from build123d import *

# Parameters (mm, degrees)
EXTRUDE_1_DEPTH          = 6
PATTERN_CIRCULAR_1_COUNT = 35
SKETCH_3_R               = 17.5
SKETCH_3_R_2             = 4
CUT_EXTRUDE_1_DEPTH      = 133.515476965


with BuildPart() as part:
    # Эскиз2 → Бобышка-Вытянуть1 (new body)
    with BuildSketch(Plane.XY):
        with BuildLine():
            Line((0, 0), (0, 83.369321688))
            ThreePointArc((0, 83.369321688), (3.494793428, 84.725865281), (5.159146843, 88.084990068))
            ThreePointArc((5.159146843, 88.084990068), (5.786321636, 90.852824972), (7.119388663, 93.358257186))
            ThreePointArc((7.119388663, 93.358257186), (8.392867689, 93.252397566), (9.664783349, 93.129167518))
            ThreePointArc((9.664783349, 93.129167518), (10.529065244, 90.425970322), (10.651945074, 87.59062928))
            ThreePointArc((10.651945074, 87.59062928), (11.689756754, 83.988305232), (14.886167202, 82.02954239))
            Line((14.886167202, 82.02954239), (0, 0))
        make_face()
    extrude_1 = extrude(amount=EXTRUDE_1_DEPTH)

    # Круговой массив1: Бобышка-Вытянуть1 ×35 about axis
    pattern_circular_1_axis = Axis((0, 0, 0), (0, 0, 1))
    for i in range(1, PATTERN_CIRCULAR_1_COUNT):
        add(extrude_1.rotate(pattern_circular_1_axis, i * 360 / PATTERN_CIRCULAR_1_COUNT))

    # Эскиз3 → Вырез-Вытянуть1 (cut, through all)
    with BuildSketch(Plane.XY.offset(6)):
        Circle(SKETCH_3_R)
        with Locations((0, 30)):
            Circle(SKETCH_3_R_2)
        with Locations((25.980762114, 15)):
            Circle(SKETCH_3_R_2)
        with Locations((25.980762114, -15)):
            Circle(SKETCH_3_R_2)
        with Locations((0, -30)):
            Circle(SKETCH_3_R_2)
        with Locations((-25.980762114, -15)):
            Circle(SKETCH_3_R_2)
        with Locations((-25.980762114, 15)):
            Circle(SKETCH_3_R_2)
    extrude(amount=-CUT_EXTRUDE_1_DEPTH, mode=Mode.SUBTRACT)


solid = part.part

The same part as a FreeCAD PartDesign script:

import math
import FreeCAD as App
import Part
import Sketcher
Q = App.Units.Quantity

doc = App.newDocument("Part")
params = doc.addObject("Spreadsheet::Sheet", "Params")
for row, (alias, value) in enumerate([
    ("sketch1_radius", "5.18 mm"),
    ("sketch1_radius2", "5.18 mm"),
    ("pad1_length", "6 mm"),
    ("sketch2_diameter", "35 mm"),
    ("sketch2_diameter2", "8 mm"),
], start=1):
    params.set(f"A{row}", alias)
    params.set(f"B{row}", "=" + value)
    params.setAlias(f"B{row}", alias)

body = doc.addObject("PartDesign::Body", "Body")

# Sketch on XY plane
sketch1 = body.newObject("Sketcher::SketchObject", "Sketch")
sketch1.AttachmentSupport = (doc.getObject("XY_Plane"), [""])
sketch1.MapMode = "FlatFace"
sketch1.addGeometry([
    Part.LineSegment(App.Vector(0, 83.369322, 0), App.Vector(0, 0, 0)),  # 0
    Part.LineSegment(App.Vector(0, 0, 0), App.Vector(14.886167, 82.029542, 0)),  # 1
    Part.ArcOfCircle(Part.Circle(App.Vector(15.811092, 87.126298, 0), App.Vector(0, 0, 1), 5.18), math.radians(174.857143), math.radians(259.714286)),  # 2
    Part.ArcOfCircle(Part.Circle(App.Vector(0, 88.549322, 0), App.Vector(0, 0, 1), 10.695), math.radians(-5.142857), math.radians(25.354845)),  # 3
    Part.ArcOfCircle(Part.Circle(App.Vector(0, 0.000005, 0), App.Vector(0, 0, 1), 93.629316), math.radians(84.075153), math.radians(85.639133)),  # 4
    Part.ArcOfCircle(Part.Circle(App.Vector(15.811092, 87.126298, 0), App.Vector(0, 0, 1), 10.695), math.radians(144.359441), math.radians(174.857143)),  # 5
    Part.ArcOfCircle(Part.Circle(App.Vector(0, 88.549322, 0), App.Vector(0, 0, 1), 5.18), math.radians(-90), math.radians(-5.142857)),  # 6
], False)
sketch1.addConstraint([
    Sketcher.Constraint("Coincident", 0, 2, 1, 1),
    Sketcher.Constraint("Coincident", 1, 2, 2, 2),
    Sketcher.Constraint("Coincident", 2, 1, 3, 1),
    Sketcher.Constraint("Coincident", 3, 2, 4, 1),
    Sketcher.Constraint("Coincident", 4, 2, 5, 1),
    Sketcher.Constraint("Coincident", 5, 2, 6, 2),
    Sketcher.Constraint("Coincident", 6, 1, 0, 1),
    Sketcher.Constraint("Vertical", 0),
    Sketcher.Constraint("Coincident", 4, 3, -1, 1),
    Sketcher.Constraint("Coincident", 0, 2, -1, 1),
    Sketcher.Constraint("Coincident", 5, 3, 2, 3),
    Sketcher.Constraint("Coincident", 6, 3, 3, 3),
    Sketcher.Constraint("PointOnObject", 3, 3, -2),
    Sketcher.Constraint("Radius", 2, Q("5.18 mm")),
    Sketcher.Constraint("Radius", 6, Q("5.18 mm")),
    Sketcher.Constraint("Radius", 3, Q("10.695 mm")),
    Sketcher.Constraint("Radius", 4, Q("93.629316 mm")),
    Sketcher.Constraint("DistanceY", 0, 2, 0, 1, Q("83.369322 mm")),
    Sketcher.Constraint("DistanceX", 5, 2, 2, 1, Q("5.492798 mm")),
    Sketcher.Constraint("Distance", 1, Q("83.369322 mm")),
    Sketcher.Constraint("DistanceY", -1, 1, 2, 1, Q("87.590629 mm")),
    Sketcher.Constraint("DistanceY", 1, 2, 3, 3, Q("6.519779 mm")),
])
sketch1.setExpression("Constraints[13]", "Params.sketch1_radius")
sketch1.setExpression("Constraints[14]", "Params.sketch1_radius2")
pad1 = body.newObject("PartDesign::Pad", "Pad")
pad1.Profile = sketch1
pad1.setExpression("Length", "Params.pad1_length")
doc.recompute()

polarpattern = body.newObject("PartDesign::PolarPattern", "PolarPattern")
polarpattern.Originals = [pad1]
polarpattern.Axis = (doc.getObject("Z_Axis"), [""])
polarpattern.Angle = 360
polarpattern.Occurrences = 35
body.Tip = polarpattern

# Sketch on XY plane
sketch2 = body.newObject("Sketcher::SketchObject", "Sketch001")
sketch2.AttachmentSupport = (doc.getObject("XY_Plane"), [""])
sketch2.MapMode = "FlatFace"
sketch2.AttachmentOffset = App.Placement(App.Vector(0, 0, 6), App.Rotation())
sketch2.addGeometry([
    Part.Circle(App.Vector(0, 0, 0), App.Vector(0, 0, 1), 17.5),  # 0
    Part.Circle(App.Vector(0, 30, 0), App.Vector(0, 0, 1), 4),  # 1
    Part.Circle(App.Vector(25.980762, 15, 0), App.Vector(0, 0, 1), 4),  # 2
    Part.Circle(App.Vector(25.980762, -15, 0), App.Vector(0, 0, 1), 4),  # 3
    Part.Circle(App.Vector(0, -30, 0), App.Vector(0, 0, 1), 4),  # 4
    Part.Circle(App.Vector(-25.980762, -15, 0), App.Vector(0, 0, 1), 4),  # 5
    Part.Circle(App.Vector(-25.980762, 15, 0), App.Vector(0, 0, 1), 4),  # 6
], False)
sketch2.addConstraint([
    Sketcher.Constraint("Coincident", 0, 3, -1, 1),
    Sketcher.Constraint("Equal", 1, 2),
    Sketcher.Constraint("Equal", 2, 3),
    Sketcher.Constraint("Equal", 3, 4),
    Sketcher.Constraint("Equal", 4, 5),
    Sketcher.Constraint("Equal", 5, 6),
    Sketcher.Constraint("Symmetric", 1, 3, 4, 3, -1, 1),
    Sketcher.Constraint("Symmetric", 2, 3, 5, 3, -1, 1),
    Sketcher.Constraint("Symmetric", 3, 3, 6, 3, -1, 1),
    Sketcher.Constraint("Symmetric", 3, 3, 5, 3, -2),
    Sketcher.Constraint("PointOnObject", 1, 3, -2),
    Sketcher.Constraint("Diameter", 0, Q("35 mm")),
    Sketcher.Constraint("Diameter", 1, Q("8 mm")),
    Sketcher.Constraint("DistanceY", -1, 1, 1, 3, Q("30 mm")),
    Sketcher.Constraint("DistanceY", -1, 1, 2, 3, Q("15 mm")),
    Sketcher.Constraint("DistanceX", -1, 1, 2, 3, Q("25.980762 mm")),
])
sketch2.setExpression("Constraints[11]", "Params.sketch2_diameter")
sketch2.setExpression("Constraints[12]", "Params.sketch2_diameter2")
pocket1 = body.newObject("PartDesign::Pocket", "Pocket")
pocket1.Profile = sketch2
pocket1.Type = "ThroughAll"

doc.recompute()
